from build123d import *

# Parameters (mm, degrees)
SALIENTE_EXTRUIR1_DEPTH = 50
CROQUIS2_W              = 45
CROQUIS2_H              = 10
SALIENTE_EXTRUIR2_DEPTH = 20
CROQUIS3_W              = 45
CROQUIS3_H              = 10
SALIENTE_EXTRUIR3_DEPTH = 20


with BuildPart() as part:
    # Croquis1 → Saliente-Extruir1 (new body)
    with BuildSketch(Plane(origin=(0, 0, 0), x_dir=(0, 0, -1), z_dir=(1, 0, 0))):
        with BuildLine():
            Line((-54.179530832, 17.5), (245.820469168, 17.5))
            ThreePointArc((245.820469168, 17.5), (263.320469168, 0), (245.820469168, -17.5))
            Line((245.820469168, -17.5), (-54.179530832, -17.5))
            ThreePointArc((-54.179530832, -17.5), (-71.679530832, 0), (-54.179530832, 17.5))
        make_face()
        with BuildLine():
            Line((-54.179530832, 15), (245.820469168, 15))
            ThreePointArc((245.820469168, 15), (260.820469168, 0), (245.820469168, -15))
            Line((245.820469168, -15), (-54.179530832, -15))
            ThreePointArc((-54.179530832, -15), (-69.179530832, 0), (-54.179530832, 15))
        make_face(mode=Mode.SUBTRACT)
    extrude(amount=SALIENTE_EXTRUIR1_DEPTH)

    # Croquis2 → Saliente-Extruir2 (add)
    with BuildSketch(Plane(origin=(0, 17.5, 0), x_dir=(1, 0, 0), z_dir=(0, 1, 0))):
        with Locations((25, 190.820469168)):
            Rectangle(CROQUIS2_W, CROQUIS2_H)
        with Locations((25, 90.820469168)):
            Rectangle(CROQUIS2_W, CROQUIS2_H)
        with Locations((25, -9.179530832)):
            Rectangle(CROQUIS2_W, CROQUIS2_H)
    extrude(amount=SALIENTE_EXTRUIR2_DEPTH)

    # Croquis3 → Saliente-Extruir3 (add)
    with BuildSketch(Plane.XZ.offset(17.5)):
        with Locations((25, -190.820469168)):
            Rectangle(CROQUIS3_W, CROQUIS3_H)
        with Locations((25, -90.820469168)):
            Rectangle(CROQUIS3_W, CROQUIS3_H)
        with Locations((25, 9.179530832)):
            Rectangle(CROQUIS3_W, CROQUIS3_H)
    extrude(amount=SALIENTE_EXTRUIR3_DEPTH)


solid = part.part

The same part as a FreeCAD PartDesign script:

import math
import FreeCAD as App
import Part
import Sketcher
Q = App.Units.Quantity

doc = App.newDocument("Part")
body = doc.addObject("PartDesign::Body", "Body")

# Sketch on YZ plane
sketch1 = body.newObject("Sketcher::SketchObject", "Sketch")
sketch1.AttachmentSupport = (doc.getObject("YZ_Plane"), [""])
sketch1.MapMode = "FlatFace"
sketch1.addGeometry([
    Part.LineSegment(App.Vector(18, -246, 0), App.Vector(18, 54, 0)),  # 0
    Part.ArcOfCircle(Part.Circle(App.Vector(0, 54, 0), App.Vector(0, 0, 1), 18), math.radians(0), math.radians(180)),  # 1
    Part.LineSegment(App.Vector(-18, 54, 0), App.Vector(-18, -246, 0)),  # 2
    Part.ArcOfCircle(Part.Circle(App.Vector(0, -246, 0), App.Vector(0, 0, 1), 18), math.radians(180), math.radians(360)),  # 3
    Part.LineSegment(App.Vector(15, 54, 0), App.Vector(15, -246, 0)),  # 4
    Part.ArcOfCircle(Part.Circle(App.Vector(0, -246, 0), App.Vector(0, 0, 1), 15), math.radians(180), math.radians(360)),  # 5
    Part.LineSegment(App.Vector(-15, -246, 0), App.Vector(-15, 54, 0)),  # 6
    Part.ArcOfCircle(Part.Circle(App.Vector(0, 54, 0), App.Vector(0, 0, 1), 15), math.radians(0), math.radians(180)),  # 7
], False)
sketch1.addConstraint([
    Sketcher.Constraint("Tangent", 0, 2, 1, 1),
    Sketcher.Constraint("Tangent", 1, 2, 2, 1),
    Sketcher.Constraint("Tangent", 2, 2, 3, 1),
    Sketcher.Constraint("Tangent", 3, 2, 0, 1),
    Sketcher.Constraint("Tangent", 4, 2, 5, 2),
    Sketcher.Constraint("Tangent", 5, 1, 6, 1),
    Sketcher.Constraint("Tangent", 6, 2, 7, 2),
    Sketcher.Constraint("Tangent", 7, 1, 4, 1),
    Sketcher.Constraint("Vertical", 0),
    Sketcher.Constraint("Vertical", 2),
    Sketcher.Constraint("Vertical", 4),
    Sketcher.Constraint("Vertical", 6),
    Sketcher.Constraint("Coincident", 5, 3, 3, 3),
    Sketcher.Constraint("PointOnObject", 1, 3, -2),
    Sketcher.Constraint("Horizontal", 7, 3, 0, 2),
    Sketcher.Constraint("Radius", 5, Q("15 mm")),
    Sketcher.Constraint("Radius", 1, Q("17.5 mm")),
    Sketcher.Constraint("DistanceY", 0, 1, 0, 2, Q("300 mm")),
    Sketcher.Constraint("DistanceY", -1, 1, 1, 3, Q("54.179531 mm")),
])
pad1 = body.newObject("PartDesign::Pad", "Pad")
pad1.Profile = sketch1
pad1.Length = 50

# Sketch on XZ plane
sketch2 = body.newObject("Sketcher::SketchObject", "Sketch001")
sketch2.AttachmentSupport = (doc.getObject("XZ_Plane"), [""])
sketch2.MapMode = "FlatFace"
sketch2.AttachmentOffset = App.Placement(App.Vector(0, 0, -17.5), App.Rotation())
sketch2.addGeometry([
    Part.LineSegment(App.Vector(2, -196, 0), App.Vector(2, -186, 0)),  # 0
    Part.LineSegment(App.Vector(2, -186, 0), App.Vector(48, -186, 0)),  # 1
    Part.LineSegment(App.Vector(48, -186, 0), App.Vector(48, -196, 0)),  # 2
    Part.LineSegment(App.Vector(48, -196, 0), App.Vector(2, -196, 0)),  # 3
    Part.LineSegment(App.Vector(2, -96, 0), App.Vector(2, -86, 0)),  # 4
    Part.LineSegment(App.Vector(2, -86, 0), App.Vector(48, -86, 0)),  # 5
    Part.LineSegment(App.Vector(48, -86, 0), App.Vector(48, -96, 0)),  # 6
    Part.LineSegment(App.Vector(48, -96, 0), App.Vector(2, -96, 0)),  # 7
    Part.LineSegment(App.Vector(2, 4, 0), App.Vector(2, 14, 0)),  # 8
    Part.LineSegment(App.Vector(2, 14, 0), App.Vector(48, 14, 0)),  # 9
    Part.LineSegment(App.Vector(48, 14, 0), App.Vector(48, 4, 0)),  # 10
    Part.LineSegment(App.Vector(48, 4, 0), App.Vector(2, 4, 0)),  # 11
], False)
sketch2.addConstraint([
    Sketcher.Constraint("Coincident", 0, 2, 1, 1),
    Sketcher.Constraint("Coincident", 1, 2, 2, 1),
    Sketcher.Constraint("Coincident", 2, 2, 3, 1),
    Sketcher.Constraint("Coincident", 3, 2, 0, 1),
    Sketcher.Constraint("Coincident", 4, 2, 5, 1),
    Sketcher.Constraint("Coincident", 5, 2, 6, 1),
    Sketcher.Constraint("Coincident", 6, 2, 7, 1),
    Sketcher.Constraint("Coincident", 7, 2, 4, 1),
    Sketcher.Constraint("Coincident", 8, 2, 9, 1),
    Sketcher.Constraint("Coincident", 9, 2, 10, 1),
    Sketcher.Constraint("Coincident", 10, 2, 11, 1),
    Sketcher.Constraint("Coincident", 11, 2, 8, 1),
    Sketcher.Constraint("Vertical", 0),
    Sketcher.Constraint("Horizontal", 1),
    Sketcher.Constraint("Vertical", 2),
    Sketcher.Constraint("Horizontal", 3),
    Sketcher.Constraint("Vertical", 4),
    Sketcher.Constraint("Horizontal", 5),
    Sketcher.Constraint("Vertical", 6),
    Sketcher.Constraint("Horizontal", 7),
    Sketcher.Constraint("Vertical", 8),
    Sketcher.Constraint("Horizontal", 9),
    Sketcher.Constraint("Vertical", 10),
    Sketcher.Constraint("Horizontal", 11),
    Sketcher.Constraint("Vertical", 3, 2, 4, 2),
    Sketcher.Constraint("Vertical", 2, 2, 5, 2),
    Sketcher.Constraint("Vertical", 7, 2, 8, 2),
    Sketcher.Constraint("Vertical", 6, 2, 9, 2),
    Sketcher.Constraint("Equal", 2, 4),
    Sketcher.Constraint("Equal", 6, 8),
    Sketcher.Constraint("DistanceX", 1, 1, 1, 2, Q("45 mm")),
    Sketcher.Constraint("DistanceY", 0, 1, 0, 2, Q("10 mm")),
    Sketcher.Constraint("DistanceY", 0, 2, 4, 2, Q("100 mm")),
    Sketcher.Constraint("DistanceY", 4, 2, 8, 2, Q("100 mm")),
    Sketcher.Constraint("DistanceX", -1, 1, 0, 2, Q("2.5 mm")),
    Sketcher.Constraint("DistanceY", 0, 2, -1, 1, Q("185.820469 mm")),
])
pad2 = body.newObject("PartDesign::Pad", "Pad001")
pad2.Profile = sketch2
pad2.Length = 20
pad2.Reversed = True

# Sketch on XZ plane
sketch3 = body.newObject("Sketcher::SketchObject", "Sketch002")
sketch3.AttachmentSupport = (doc.getObject("XZ_Plane"), [""])
sketch3.MapMode = "FlatFace"
sketch3.AttachmentOffset = App.Placement(App.Vector(0, 0, 17.5), App.Rotation())
sketch3.addGeometry([
    Part.LineSegment(App.Vector(2, -186, 0), App.Vector(2, -196, 0)),  # 0
    Part.LineSegment(App.Vector(2, -196, 0), App.Vector(48, -196, 0)),  # 1
    Part.LineSegment(App.Vector(48, -196, 0), App.Vector(48, -186, 0)),  # 2
    Part.LineSegment(App.Vector(48, -186, 0), App.Vector(2, -186, 0)),  # 3
    Part.LineSegment(App.Vector(2, -86, 0), App.Vector(2, -96, 0)),  # 4
    Part.LineSegment(App.Vector(2, -96, 0), App.Vector(48, -96, 0)),  # 5
    Part.LineSegment(App.Vector(48, -96, 0), App.Vector(48, -86, 0)),  # 6
    Part.LineSegment(App.Vector(48, -86, 0), App.Vector(2, -86, 0)),  # 7
    Part.LineSegment(App.Vector(2, 14, 0), App.Vector(2, 4, 0)),  # 8
    Part.LineSegment(App.Vector(2, 4, 0), App.Vector(48, 4, 0)),  # 9
    Part.LineSegment(App.Vector(48, 4, 0), App.Vector(48, 14, 0)),  # 10
    Part.LineSegment(App.Vector(48, 14, 0), App.Vector(2, 14, 0)),  # 11
], False)
sketch3.addConstraint([
    Sketcher.Constraint("Coincident", 0, 2, 1, 1),
    Sketcher.Constraint("Coincident", 1, 2, 2, 1),
    Sketcher.Constraint("Coincident", 2, 2, 3, 1),
    Sketcher.Constraint("Coincident", 3, 2, 0, 1),
    Sketcher.Constraint("Coincident", 4, 2, 5, 1),
    Sketcher.Constraint("Coincident", 5, 2, 6, 1),
    Sketcher.Constraint("Coincident", 6, 2, 7, 1),
    Sketcher.Constraint("Coincident", 7, 2, 4, 1),
    Sketcher.Constraint("Coincident", 8, 2, 9, 1),
    Sketcher.Constraint("Coincident", 9, 2, 10, 1),
    Sketcher.Constraint("Coincident", 10, 2, 11, 1),
    Sketcher.Constraint("Coincident", 11, 2, 8, 1),
    Sketcher.Constraint("Vertical", 0),
    Sketcher.Constraint("Horizontal", 1),
    Sketcher.Constraint("Vertical", 2),
    Sketcher.Constraint("Horizontal", 3),
    Sketcher.Constraint("Vertical", 4),
    Sketcher.Constraint("Horizontal", 5),
    Sketcher.Constraint("Vertical", 6),
    Sketcher.Constraint("Horizontal", 7),
    Sketcher.Constraint("Vertical", 8),
    Sketcher.Constraint("Horizontal", 9),
    Sketcher.Constraint("Vertical", 10),
    Sketcher.Constraint("Horizontal", 11),
    Sketcher.Constraint("Vertical", 3, 2, 4, 2),
    Sketcher.Constraint("Vertical", 2, 2, 5, 2),
    Sketcher.Constraint("Vertical", 7, 2, 8, 2),
    Sketcher.Constraint("Vertical", 6, 2, 9, 2),
    Sketcher.Constraint("Equal", 2, 4),
    Sketcher.Constraint("Equal", 6, 8),
    Sketcher.Constraint("DistanceX", 1, 1, 1, 2, Q("45 mm")),
    Sketcher.Constraint("DistanceY", 0, 2, 0, 1, Q("10 mm")),
    Sketcher.Constraint("DistanceY", 3, 2, 4, 2, Q("90 mm")),
    Sketcher.Constraint("DistanceY", 7, 2, 8, 2, Q("90 mm")),
    Sketcher.Constraint("DistanceX", -1, 1, 0, 2, Q("2.5 mm")),
    Sketcher.Constraint("DistanceY", 0, 2, -1, 1, Q("195.820469 mm")),
])
pad3 = body.newObject("PartDesign::Pad", "Pad002")
pad3.Profile = sketch3
pad3.Length = 20

doc.recompute()
